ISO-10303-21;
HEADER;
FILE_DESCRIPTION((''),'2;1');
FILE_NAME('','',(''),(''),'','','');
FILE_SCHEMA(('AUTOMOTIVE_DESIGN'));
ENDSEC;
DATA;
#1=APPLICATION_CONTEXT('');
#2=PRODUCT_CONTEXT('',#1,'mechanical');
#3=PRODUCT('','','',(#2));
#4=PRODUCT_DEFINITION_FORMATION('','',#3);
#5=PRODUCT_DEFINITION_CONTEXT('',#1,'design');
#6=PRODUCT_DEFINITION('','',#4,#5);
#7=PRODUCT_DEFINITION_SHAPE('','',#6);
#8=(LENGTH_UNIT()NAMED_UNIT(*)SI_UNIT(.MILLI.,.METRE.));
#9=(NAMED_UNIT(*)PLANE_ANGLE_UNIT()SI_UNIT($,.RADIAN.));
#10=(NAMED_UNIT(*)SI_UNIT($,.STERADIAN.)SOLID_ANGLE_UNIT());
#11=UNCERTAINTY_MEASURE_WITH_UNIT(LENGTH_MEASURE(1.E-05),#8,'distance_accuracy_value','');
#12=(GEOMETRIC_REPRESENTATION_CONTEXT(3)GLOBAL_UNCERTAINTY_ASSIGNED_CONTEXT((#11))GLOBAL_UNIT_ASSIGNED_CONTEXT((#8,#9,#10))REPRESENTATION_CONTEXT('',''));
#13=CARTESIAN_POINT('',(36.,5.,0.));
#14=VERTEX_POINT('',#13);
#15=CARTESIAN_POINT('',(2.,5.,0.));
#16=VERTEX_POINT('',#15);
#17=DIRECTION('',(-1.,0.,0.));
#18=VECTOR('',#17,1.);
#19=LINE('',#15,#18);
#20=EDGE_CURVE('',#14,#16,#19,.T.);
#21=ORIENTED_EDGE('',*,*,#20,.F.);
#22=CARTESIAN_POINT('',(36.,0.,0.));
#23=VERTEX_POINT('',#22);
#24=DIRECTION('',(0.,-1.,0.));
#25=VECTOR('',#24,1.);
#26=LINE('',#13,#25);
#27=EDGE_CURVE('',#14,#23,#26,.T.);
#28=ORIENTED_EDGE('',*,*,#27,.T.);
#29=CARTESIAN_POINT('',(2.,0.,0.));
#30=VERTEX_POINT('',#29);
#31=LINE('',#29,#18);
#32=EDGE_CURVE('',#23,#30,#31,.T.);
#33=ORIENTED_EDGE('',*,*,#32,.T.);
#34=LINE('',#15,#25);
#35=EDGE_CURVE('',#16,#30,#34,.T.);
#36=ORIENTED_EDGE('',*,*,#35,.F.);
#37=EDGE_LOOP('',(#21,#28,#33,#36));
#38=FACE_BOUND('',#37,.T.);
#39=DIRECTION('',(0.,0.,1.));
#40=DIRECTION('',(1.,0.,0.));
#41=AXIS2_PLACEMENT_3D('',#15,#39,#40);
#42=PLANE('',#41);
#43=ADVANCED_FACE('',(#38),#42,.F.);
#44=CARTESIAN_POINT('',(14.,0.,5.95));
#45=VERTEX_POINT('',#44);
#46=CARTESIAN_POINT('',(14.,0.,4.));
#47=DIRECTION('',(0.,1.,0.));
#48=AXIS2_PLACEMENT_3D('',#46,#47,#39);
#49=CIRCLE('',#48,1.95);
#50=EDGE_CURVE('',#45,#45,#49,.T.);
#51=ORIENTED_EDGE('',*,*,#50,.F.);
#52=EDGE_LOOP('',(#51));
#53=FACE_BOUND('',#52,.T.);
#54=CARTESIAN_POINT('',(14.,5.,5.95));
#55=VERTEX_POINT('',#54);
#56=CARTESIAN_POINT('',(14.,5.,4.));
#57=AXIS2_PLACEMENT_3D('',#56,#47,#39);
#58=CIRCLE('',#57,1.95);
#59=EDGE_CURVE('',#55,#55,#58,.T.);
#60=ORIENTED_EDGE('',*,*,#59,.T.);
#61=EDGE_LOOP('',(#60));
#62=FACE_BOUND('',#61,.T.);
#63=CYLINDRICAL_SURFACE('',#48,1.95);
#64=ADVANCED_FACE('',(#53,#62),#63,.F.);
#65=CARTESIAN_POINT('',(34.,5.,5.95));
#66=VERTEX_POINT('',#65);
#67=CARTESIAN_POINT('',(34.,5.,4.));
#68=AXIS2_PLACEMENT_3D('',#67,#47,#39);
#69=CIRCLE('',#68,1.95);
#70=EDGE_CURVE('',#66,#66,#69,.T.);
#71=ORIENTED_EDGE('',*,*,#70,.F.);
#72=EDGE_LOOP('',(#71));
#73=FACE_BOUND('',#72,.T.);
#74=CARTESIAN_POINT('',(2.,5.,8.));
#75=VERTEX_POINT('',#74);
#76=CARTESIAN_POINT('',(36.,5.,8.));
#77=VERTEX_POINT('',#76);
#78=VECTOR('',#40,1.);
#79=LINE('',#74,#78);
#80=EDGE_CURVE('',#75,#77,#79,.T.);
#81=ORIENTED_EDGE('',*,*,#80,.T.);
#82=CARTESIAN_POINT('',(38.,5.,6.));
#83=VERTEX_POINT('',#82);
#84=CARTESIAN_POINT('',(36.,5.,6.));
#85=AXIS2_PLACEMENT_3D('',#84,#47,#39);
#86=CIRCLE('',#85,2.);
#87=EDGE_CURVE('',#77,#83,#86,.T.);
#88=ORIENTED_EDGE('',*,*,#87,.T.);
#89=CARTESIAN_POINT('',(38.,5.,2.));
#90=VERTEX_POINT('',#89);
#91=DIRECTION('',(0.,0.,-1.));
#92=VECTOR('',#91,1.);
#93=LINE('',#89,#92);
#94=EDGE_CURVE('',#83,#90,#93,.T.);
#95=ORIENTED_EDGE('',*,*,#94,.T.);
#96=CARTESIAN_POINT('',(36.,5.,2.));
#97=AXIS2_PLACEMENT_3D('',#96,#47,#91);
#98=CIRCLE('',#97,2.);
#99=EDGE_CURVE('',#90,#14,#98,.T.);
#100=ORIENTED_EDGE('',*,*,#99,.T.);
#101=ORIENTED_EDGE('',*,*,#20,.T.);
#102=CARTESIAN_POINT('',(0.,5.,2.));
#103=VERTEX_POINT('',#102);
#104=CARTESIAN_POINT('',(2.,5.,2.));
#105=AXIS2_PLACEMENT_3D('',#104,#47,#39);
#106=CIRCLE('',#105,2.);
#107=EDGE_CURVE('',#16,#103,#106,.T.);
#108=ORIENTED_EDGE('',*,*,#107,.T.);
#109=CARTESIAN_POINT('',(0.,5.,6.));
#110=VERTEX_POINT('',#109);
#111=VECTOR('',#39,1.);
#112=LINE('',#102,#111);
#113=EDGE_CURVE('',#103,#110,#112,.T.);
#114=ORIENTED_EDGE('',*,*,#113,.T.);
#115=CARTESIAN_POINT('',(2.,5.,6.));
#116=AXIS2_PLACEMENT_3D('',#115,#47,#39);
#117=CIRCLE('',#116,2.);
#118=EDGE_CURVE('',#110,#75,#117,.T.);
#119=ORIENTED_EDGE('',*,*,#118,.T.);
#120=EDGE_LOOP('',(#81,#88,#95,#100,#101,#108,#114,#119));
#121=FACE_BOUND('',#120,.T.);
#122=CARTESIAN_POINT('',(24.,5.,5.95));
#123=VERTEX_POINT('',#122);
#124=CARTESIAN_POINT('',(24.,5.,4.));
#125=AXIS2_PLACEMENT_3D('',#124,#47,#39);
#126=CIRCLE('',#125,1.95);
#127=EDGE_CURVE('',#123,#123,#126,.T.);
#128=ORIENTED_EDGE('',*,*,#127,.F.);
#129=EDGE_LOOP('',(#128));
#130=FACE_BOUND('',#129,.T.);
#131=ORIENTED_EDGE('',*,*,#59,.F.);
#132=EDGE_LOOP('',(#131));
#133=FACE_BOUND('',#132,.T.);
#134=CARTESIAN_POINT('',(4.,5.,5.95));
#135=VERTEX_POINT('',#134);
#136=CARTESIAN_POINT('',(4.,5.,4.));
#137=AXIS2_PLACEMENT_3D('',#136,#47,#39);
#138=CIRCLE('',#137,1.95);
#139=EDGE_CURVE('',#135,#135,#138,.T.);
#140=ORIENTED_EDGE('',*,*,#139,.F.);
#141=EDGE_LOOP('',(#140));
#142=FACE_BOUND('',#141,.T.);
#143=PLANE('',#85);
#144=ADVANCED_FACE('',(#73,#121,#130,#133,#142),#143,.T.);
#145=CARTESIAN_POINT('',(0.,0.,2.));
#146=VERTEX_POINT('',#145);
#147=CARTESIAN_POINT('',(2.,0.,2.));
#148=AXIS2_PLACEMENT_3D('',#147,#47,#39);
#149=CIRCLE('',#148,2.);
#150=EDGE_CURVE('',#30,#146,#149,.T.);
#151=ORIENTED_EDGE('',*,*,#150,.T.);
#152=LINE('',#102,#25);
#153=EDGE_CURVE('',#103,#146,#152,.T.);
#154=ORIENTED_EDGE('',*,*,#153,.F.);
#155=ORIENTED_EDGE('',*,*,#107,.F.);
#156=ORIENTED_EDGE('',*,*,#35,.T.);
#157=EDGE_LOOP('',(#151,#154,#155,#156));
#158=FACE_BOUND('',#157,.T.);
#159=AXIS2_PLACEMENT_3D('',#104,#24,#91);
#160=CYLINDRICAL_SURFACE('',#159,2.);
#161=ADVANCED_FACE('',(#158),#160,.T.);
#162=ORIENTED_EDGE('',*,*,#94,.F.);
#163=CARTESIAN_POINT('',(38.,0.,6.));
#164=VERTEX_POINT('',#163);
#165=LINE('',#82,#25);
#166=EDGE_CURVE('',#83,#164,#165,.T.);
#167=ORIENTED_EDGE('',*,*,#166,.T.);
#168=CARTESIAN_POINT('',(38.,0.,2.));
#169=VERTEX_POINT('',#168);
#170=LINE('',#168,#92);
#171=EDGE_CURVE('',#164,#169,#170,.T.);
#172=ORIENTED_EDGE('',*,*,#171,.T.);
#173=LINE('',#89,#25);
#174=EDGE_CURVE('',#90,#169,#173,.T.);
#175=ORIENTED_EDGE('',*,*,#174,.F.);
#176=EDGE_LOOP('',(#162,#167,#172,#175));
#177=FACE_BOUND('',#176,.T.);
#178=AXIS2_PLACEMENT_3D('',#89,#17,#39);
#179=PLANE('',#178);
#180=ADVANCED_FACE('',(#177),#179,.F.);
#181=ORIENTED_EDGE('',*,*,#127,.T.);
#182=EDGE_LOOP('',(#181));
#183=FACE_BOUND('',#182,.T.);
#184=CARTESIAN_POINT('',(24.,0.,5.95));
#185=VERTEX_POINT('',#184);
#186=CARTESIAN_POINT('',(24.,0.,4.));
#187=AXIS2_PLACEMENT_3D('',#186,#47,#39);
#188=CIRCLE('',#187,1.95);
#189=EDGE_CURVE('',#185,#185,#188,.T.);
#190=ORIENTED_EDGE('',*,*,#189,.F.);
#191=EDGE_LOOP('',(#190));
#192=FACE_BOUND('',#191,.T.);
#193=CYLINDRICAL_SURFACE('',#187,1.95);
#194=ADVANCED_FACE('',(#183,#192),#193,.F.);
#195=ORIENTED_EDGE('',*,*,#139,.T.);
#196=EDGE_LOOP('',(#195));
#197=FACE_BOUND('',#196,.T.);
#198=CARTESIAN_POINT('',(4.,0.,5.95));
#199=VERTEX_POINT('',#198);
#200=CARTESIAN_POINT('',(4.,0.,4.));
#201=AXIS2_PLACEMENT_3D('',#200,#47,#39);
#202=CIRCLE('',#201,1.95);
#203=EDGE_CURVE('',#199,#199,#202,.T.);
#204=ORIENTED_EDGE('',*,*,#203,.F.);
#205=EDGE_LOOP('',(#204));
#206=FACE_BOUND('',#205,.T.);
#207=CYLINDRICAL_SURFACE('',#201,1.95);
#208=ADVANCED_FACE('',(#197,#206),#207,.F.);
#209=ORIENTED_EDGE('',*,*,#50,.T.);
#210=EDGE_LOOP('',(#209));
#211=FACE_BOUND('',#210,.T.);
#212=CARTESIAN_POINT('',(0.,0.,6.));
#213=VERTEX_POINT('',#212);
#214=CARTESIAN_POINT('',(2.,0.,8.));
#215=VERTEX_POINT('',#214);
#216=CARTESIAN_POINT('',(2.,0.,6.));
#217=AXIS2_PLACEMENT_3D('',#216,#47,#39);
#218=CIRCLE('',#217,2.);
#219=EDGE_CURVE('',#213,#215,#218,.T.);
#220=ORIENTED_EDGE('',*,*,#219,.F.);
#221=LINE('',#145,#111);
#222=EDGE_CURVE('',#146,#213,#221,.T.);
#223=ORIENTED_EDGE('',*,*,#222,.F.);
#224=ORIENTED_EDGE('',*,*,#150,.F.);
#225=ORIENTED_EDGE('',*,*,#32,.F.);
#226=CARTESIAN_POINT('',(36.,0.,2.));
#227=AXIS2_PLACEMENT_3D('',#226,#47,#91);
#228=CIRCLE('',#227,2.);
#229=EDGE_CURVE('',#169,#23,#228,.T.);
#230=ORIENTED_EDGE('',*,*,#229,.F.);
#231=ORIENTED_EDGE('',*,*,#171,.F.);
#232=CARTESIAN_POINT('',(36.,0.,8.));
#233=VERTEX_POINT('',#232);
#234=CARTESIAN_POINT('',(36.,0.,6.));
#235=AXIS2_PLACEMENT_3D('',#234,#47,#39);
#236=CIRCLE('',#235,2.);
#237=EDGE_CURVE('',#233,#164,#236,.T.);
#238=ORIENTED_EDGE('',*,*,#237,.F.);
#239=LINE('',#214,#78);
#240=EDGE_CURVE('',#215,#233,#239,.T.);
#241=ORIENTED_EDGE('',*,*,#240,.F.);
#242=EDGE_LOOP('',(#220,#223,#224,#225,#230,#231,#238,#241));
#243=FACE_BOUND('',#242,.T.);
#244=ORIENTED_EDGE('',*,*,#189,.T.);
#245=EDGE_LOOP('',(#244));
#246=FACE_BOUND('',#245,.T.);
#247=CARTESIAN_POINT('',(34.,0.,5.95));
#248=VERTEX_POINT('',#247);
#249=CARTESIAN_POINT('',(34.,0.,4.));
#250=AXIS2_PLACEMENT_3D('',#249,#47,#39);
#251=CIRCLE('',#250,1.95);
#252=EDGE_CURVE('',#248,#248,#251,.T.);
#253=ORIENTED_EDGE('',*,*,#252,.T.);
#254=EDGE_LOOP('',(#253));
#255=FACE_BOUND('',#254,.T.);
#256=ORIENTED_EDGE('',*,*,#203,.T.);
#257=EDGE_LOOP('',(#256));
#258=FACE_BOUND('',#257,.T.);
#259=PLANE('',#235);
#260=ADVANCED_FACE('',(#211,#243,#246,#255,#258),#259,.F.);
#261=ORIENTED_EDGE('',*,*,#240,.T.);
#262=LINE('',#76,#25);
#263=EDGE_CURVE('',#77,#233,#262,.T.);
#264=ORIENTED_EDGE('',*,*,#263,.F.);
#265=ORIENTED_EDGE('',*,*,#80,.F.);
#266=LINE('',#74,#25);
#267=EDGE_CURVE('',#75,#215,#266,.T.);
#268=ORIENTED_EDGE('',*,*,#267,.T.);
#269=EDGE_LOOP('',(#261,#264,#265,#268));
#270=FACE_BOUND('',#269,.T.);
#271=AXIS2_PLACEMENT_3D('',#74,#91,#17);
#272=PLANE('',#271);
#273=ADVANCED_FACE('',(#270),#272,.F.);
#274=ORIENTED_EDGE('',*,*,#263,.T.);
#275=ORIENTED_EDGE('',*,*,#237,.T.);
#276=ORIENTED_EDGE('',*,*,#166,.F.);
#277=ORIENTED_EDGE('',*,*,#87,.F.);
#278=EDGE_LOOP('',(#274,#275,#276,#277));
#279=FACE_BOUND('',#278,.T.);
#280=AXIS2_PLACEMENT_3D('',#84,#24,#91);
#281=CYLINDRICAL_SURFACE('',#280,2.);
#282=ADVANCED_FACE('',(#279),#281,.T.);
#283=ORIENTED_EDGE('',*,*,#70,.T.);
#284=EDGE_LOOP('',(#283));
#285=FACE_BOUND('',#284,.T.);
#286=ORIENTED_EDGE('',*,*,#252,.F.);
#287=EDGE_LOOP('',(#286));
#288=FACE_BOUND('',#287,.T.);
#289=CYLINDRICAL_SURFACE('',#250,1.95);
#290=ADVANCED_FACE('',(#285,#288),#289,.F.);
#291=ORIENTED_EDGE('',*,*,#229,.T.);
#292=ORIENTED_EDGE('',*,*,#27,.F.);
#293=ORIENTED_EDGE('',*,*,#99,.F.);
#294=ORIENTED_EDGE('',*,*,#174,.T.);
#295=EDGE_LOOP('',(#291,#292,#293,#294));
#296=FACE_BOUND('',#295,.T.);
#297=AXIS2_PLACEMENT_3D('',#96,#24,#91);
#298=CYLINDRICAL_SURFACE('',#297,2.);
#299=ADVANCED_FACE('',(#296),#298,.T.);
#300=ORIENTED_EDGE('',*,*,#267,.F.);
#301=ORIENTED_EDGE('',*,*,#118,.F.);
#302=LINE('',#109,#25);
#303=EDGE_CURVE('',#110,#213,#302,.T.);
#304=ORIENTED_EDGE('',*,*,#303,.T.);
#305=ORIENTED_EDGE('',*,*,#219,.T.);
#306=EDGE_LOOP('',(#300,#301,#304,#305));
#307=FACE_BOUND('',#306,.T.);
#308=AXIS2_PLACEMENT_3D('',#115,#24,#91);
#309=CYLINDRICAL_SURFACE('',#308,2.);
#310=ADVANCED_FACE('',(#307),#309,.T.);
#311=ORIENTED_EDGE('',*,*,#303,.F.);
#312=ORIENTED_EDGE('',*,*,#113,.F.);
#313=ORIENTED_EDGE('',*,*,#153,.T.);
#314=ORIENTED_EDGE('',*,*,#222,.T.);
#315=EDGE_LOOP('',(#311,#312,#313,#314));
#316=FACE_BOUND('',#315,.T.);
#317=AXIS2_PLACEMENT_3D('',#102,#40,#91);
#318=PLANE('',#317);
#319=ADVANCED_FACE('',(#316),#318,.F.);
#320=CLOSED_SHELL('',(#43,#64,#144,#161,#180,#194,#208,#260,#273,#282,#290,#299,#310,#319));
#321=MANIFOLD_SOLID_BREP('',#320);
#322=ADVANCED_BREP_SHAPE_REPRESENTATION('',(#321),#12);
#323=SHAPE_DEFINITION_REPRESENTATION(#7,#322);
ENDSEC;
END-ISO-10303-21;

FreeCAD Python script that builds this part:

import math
import FreeCAD as App
import Part
import Sketcher
from FreeCAD import Vector

doc = App.newDocument("Part")
body = doc.addObject("PartDesign::Body", "Body")

# Sketch on XZ plane
sketch1 = body.newObject("Sketcher::SketchObject", "Sketch")
sketch1.AttachmentSupport = (doc.getObject("XZ_Plane"), [""])
sketch1.MapMode = "FlatFace"
sketch1.addGeometry([
    Part.LineSegment(Vector(36, 0, 0), Vector(2, 0, 0)),  # 0
    Part.ArcOfCircle(Part.Circle(Vector(2, 2, 0), Vector(0, 0, 1), 2), math.radians(-180), math.radians(-90)),  # 1
    Part.LineSegment(Vector(0, 2, 0), Vector(0, 6, 0)),  # 2
    Part.ArcOfCircle(Part.Circle(Vector(2, 6, 0), Vector(0, 0, 1), 2), math.radians(90), math.radians(180)),  # 3
    Part.LineSegment(Vector(2, 8, 0), Vector(36, 8, 0)),  # 4
    Part.ArcOfCircle(Part.Circle(Vector(36, 6, 0), Vector(0, 0, 1), 2), math.radians(0), math.radians(90)),  # 5
    Part.LineSegment(Vector(38, 6, 0), Vector(38, 2, 0)),  # 6
    Part.ArcOfCircle(Part.Circle(Vector(36, 2, 0), Vector(0, 0, 1), 2), math.radians(-90), math.radians(0)),  # 7
], False)
sketch1.addConstraint([
    Sketcher.Constraint("Tangent", 0, 2, 1, 2),
    Sketcher.Constraint("Tangent", 1, 1, 2, 1),
    Sketcher.Constraint("Tangent", 2, 2, 3, 2),
    Sketcher.Constraint("Tangent", 3, 1, 4, 1),
    Sketcher.Constraint("Tangent", 4, 2, 5, 2),
    Sketcher.Constraint("Tangent", 5, 1, 6, 1),
    Sketcher.Constraint("Tangent", 6, 2, 7, 2),
    Sketcher.Constraint("Tangent", 7, 1, 0, 1),
    Sketcher.Constraint("Horizontal", 0),
    Sketcher.Constraint("Vertical", 2),
    Sketcher.Constraint("Horizontal", 4),
    Sketcher.Constraint("Vertical", 6),
    Sketcher.Constraint("Equal", 1, 3),
    Sketcher.Constraint("Equal", 3, 5),
    Sketcher.Constraint("Equal", 5, 7),
    Sketcher.Constraint("PointOnObject", 0, 2, -1),
    Sketcher.Constraint("PointOnObject", 1, 1, -2),
    Sketcher.Constraint("Radius", 1, 2.0),
    Sketcher.Constraint("DistanceX", 0, 2, 0, 1, 34.0),
    Sketcher.Constraint("DistanceY", 2, 1, 2, 2, 4.0),
])
pad1 = body.newObject("PartDesign::Pad", "Pad")
pad1.Profile = sketch1
pad1.Length = 5
pad1.Reversed = True

# Sketch on XZ plane
sketch2 = body.newObject("Sketcher::SketchObject", "Sketch001")
sketch2.AttachmentSupport = (doc.getObject("XZ_Plane"), [""])
sketch2.MapMode = "FlatFace"
sketch2.AttachmentOffset = App.Placement(Vector(0, 0, -5), App.Rotation())
sketch2.addGeometry([
    Part.Circle(Vector(34, 4, 0), Vector(0, 0, 1), 1.9),  # 0
    Part.Circle(Vector(24, 4, 0), Vector(0, 0, 1), 1.9),  # 1
    Part.Circle(Vector(14, 4, 0), Vector(0, 0, 1), 1.9),  # 2
    Part.Circle(Vector(-16, 4, 0), Vector(0, 0, 1), 1.9),  # 3
    Part.Circle(Vector(4, 4, 0), Vector(0, 0, 1), 1.9),  # 4
    Part.Circle(Vector(-6, 4, 0), Vector(0, 0, 1), 1.9),  # 5
], False)
sketch2.addConstraint([
    Sketcher.Constraint("Equal", 0, 1),
    Sketcher.Constraint("Equal", 1, 2),
    Sketcher.Constraint("Equal", 2, 3),
    Sketcher.Constraint("Equal", 3, 4),
    Sketcher.Constraint("Equal", 4, 5),
    Sketcher.Constraint("Horizontal", 0, 3, 1, 3),
    Sketcher.Constraint("Horizontal", 1, 3, 2, 3),
    Sketcher.Constraint("Horizontal", 2, 3, 3, 3),
    Sketcher.Constraint("Horizontal", 3, 3, 4, 3),
    Sketcher.Constraint("Horizontal", 4, 3, 5, 3),
    Sketcher.Constraint("Diameter", 0, 3.9),
    Sketcher.Constraint("DistanceX", -1, 1, 0, 3, 34.0),
    Sketcher.Constraint("DistanceY", -1, 1, 0, 3, 4.0),
    Sketcher.Constraint("DistanceX", -1, 1, 1, 3, 24.0),
    Sketcher.Constraint("DistanceX", -1, 1, 2, 3, 14.0),
    Sketcher.Constraint("DistanceX", 3, 3, -1, 1, 16.0),
    Sketcher.Constraint("DistanceX", -1, 1, 4, 3, 4.0),
    Sketcher.Constraint("DistanceX", 5, 3, -1, 1, 6.0),
])
pocket1 = body.newObject("PartDesign::Pocket", "Pocket")
pocket1.Profile = sketch2
pocket1.Type = "ThroughAll"
pocket1.Reversed = True

doc.recompute()
